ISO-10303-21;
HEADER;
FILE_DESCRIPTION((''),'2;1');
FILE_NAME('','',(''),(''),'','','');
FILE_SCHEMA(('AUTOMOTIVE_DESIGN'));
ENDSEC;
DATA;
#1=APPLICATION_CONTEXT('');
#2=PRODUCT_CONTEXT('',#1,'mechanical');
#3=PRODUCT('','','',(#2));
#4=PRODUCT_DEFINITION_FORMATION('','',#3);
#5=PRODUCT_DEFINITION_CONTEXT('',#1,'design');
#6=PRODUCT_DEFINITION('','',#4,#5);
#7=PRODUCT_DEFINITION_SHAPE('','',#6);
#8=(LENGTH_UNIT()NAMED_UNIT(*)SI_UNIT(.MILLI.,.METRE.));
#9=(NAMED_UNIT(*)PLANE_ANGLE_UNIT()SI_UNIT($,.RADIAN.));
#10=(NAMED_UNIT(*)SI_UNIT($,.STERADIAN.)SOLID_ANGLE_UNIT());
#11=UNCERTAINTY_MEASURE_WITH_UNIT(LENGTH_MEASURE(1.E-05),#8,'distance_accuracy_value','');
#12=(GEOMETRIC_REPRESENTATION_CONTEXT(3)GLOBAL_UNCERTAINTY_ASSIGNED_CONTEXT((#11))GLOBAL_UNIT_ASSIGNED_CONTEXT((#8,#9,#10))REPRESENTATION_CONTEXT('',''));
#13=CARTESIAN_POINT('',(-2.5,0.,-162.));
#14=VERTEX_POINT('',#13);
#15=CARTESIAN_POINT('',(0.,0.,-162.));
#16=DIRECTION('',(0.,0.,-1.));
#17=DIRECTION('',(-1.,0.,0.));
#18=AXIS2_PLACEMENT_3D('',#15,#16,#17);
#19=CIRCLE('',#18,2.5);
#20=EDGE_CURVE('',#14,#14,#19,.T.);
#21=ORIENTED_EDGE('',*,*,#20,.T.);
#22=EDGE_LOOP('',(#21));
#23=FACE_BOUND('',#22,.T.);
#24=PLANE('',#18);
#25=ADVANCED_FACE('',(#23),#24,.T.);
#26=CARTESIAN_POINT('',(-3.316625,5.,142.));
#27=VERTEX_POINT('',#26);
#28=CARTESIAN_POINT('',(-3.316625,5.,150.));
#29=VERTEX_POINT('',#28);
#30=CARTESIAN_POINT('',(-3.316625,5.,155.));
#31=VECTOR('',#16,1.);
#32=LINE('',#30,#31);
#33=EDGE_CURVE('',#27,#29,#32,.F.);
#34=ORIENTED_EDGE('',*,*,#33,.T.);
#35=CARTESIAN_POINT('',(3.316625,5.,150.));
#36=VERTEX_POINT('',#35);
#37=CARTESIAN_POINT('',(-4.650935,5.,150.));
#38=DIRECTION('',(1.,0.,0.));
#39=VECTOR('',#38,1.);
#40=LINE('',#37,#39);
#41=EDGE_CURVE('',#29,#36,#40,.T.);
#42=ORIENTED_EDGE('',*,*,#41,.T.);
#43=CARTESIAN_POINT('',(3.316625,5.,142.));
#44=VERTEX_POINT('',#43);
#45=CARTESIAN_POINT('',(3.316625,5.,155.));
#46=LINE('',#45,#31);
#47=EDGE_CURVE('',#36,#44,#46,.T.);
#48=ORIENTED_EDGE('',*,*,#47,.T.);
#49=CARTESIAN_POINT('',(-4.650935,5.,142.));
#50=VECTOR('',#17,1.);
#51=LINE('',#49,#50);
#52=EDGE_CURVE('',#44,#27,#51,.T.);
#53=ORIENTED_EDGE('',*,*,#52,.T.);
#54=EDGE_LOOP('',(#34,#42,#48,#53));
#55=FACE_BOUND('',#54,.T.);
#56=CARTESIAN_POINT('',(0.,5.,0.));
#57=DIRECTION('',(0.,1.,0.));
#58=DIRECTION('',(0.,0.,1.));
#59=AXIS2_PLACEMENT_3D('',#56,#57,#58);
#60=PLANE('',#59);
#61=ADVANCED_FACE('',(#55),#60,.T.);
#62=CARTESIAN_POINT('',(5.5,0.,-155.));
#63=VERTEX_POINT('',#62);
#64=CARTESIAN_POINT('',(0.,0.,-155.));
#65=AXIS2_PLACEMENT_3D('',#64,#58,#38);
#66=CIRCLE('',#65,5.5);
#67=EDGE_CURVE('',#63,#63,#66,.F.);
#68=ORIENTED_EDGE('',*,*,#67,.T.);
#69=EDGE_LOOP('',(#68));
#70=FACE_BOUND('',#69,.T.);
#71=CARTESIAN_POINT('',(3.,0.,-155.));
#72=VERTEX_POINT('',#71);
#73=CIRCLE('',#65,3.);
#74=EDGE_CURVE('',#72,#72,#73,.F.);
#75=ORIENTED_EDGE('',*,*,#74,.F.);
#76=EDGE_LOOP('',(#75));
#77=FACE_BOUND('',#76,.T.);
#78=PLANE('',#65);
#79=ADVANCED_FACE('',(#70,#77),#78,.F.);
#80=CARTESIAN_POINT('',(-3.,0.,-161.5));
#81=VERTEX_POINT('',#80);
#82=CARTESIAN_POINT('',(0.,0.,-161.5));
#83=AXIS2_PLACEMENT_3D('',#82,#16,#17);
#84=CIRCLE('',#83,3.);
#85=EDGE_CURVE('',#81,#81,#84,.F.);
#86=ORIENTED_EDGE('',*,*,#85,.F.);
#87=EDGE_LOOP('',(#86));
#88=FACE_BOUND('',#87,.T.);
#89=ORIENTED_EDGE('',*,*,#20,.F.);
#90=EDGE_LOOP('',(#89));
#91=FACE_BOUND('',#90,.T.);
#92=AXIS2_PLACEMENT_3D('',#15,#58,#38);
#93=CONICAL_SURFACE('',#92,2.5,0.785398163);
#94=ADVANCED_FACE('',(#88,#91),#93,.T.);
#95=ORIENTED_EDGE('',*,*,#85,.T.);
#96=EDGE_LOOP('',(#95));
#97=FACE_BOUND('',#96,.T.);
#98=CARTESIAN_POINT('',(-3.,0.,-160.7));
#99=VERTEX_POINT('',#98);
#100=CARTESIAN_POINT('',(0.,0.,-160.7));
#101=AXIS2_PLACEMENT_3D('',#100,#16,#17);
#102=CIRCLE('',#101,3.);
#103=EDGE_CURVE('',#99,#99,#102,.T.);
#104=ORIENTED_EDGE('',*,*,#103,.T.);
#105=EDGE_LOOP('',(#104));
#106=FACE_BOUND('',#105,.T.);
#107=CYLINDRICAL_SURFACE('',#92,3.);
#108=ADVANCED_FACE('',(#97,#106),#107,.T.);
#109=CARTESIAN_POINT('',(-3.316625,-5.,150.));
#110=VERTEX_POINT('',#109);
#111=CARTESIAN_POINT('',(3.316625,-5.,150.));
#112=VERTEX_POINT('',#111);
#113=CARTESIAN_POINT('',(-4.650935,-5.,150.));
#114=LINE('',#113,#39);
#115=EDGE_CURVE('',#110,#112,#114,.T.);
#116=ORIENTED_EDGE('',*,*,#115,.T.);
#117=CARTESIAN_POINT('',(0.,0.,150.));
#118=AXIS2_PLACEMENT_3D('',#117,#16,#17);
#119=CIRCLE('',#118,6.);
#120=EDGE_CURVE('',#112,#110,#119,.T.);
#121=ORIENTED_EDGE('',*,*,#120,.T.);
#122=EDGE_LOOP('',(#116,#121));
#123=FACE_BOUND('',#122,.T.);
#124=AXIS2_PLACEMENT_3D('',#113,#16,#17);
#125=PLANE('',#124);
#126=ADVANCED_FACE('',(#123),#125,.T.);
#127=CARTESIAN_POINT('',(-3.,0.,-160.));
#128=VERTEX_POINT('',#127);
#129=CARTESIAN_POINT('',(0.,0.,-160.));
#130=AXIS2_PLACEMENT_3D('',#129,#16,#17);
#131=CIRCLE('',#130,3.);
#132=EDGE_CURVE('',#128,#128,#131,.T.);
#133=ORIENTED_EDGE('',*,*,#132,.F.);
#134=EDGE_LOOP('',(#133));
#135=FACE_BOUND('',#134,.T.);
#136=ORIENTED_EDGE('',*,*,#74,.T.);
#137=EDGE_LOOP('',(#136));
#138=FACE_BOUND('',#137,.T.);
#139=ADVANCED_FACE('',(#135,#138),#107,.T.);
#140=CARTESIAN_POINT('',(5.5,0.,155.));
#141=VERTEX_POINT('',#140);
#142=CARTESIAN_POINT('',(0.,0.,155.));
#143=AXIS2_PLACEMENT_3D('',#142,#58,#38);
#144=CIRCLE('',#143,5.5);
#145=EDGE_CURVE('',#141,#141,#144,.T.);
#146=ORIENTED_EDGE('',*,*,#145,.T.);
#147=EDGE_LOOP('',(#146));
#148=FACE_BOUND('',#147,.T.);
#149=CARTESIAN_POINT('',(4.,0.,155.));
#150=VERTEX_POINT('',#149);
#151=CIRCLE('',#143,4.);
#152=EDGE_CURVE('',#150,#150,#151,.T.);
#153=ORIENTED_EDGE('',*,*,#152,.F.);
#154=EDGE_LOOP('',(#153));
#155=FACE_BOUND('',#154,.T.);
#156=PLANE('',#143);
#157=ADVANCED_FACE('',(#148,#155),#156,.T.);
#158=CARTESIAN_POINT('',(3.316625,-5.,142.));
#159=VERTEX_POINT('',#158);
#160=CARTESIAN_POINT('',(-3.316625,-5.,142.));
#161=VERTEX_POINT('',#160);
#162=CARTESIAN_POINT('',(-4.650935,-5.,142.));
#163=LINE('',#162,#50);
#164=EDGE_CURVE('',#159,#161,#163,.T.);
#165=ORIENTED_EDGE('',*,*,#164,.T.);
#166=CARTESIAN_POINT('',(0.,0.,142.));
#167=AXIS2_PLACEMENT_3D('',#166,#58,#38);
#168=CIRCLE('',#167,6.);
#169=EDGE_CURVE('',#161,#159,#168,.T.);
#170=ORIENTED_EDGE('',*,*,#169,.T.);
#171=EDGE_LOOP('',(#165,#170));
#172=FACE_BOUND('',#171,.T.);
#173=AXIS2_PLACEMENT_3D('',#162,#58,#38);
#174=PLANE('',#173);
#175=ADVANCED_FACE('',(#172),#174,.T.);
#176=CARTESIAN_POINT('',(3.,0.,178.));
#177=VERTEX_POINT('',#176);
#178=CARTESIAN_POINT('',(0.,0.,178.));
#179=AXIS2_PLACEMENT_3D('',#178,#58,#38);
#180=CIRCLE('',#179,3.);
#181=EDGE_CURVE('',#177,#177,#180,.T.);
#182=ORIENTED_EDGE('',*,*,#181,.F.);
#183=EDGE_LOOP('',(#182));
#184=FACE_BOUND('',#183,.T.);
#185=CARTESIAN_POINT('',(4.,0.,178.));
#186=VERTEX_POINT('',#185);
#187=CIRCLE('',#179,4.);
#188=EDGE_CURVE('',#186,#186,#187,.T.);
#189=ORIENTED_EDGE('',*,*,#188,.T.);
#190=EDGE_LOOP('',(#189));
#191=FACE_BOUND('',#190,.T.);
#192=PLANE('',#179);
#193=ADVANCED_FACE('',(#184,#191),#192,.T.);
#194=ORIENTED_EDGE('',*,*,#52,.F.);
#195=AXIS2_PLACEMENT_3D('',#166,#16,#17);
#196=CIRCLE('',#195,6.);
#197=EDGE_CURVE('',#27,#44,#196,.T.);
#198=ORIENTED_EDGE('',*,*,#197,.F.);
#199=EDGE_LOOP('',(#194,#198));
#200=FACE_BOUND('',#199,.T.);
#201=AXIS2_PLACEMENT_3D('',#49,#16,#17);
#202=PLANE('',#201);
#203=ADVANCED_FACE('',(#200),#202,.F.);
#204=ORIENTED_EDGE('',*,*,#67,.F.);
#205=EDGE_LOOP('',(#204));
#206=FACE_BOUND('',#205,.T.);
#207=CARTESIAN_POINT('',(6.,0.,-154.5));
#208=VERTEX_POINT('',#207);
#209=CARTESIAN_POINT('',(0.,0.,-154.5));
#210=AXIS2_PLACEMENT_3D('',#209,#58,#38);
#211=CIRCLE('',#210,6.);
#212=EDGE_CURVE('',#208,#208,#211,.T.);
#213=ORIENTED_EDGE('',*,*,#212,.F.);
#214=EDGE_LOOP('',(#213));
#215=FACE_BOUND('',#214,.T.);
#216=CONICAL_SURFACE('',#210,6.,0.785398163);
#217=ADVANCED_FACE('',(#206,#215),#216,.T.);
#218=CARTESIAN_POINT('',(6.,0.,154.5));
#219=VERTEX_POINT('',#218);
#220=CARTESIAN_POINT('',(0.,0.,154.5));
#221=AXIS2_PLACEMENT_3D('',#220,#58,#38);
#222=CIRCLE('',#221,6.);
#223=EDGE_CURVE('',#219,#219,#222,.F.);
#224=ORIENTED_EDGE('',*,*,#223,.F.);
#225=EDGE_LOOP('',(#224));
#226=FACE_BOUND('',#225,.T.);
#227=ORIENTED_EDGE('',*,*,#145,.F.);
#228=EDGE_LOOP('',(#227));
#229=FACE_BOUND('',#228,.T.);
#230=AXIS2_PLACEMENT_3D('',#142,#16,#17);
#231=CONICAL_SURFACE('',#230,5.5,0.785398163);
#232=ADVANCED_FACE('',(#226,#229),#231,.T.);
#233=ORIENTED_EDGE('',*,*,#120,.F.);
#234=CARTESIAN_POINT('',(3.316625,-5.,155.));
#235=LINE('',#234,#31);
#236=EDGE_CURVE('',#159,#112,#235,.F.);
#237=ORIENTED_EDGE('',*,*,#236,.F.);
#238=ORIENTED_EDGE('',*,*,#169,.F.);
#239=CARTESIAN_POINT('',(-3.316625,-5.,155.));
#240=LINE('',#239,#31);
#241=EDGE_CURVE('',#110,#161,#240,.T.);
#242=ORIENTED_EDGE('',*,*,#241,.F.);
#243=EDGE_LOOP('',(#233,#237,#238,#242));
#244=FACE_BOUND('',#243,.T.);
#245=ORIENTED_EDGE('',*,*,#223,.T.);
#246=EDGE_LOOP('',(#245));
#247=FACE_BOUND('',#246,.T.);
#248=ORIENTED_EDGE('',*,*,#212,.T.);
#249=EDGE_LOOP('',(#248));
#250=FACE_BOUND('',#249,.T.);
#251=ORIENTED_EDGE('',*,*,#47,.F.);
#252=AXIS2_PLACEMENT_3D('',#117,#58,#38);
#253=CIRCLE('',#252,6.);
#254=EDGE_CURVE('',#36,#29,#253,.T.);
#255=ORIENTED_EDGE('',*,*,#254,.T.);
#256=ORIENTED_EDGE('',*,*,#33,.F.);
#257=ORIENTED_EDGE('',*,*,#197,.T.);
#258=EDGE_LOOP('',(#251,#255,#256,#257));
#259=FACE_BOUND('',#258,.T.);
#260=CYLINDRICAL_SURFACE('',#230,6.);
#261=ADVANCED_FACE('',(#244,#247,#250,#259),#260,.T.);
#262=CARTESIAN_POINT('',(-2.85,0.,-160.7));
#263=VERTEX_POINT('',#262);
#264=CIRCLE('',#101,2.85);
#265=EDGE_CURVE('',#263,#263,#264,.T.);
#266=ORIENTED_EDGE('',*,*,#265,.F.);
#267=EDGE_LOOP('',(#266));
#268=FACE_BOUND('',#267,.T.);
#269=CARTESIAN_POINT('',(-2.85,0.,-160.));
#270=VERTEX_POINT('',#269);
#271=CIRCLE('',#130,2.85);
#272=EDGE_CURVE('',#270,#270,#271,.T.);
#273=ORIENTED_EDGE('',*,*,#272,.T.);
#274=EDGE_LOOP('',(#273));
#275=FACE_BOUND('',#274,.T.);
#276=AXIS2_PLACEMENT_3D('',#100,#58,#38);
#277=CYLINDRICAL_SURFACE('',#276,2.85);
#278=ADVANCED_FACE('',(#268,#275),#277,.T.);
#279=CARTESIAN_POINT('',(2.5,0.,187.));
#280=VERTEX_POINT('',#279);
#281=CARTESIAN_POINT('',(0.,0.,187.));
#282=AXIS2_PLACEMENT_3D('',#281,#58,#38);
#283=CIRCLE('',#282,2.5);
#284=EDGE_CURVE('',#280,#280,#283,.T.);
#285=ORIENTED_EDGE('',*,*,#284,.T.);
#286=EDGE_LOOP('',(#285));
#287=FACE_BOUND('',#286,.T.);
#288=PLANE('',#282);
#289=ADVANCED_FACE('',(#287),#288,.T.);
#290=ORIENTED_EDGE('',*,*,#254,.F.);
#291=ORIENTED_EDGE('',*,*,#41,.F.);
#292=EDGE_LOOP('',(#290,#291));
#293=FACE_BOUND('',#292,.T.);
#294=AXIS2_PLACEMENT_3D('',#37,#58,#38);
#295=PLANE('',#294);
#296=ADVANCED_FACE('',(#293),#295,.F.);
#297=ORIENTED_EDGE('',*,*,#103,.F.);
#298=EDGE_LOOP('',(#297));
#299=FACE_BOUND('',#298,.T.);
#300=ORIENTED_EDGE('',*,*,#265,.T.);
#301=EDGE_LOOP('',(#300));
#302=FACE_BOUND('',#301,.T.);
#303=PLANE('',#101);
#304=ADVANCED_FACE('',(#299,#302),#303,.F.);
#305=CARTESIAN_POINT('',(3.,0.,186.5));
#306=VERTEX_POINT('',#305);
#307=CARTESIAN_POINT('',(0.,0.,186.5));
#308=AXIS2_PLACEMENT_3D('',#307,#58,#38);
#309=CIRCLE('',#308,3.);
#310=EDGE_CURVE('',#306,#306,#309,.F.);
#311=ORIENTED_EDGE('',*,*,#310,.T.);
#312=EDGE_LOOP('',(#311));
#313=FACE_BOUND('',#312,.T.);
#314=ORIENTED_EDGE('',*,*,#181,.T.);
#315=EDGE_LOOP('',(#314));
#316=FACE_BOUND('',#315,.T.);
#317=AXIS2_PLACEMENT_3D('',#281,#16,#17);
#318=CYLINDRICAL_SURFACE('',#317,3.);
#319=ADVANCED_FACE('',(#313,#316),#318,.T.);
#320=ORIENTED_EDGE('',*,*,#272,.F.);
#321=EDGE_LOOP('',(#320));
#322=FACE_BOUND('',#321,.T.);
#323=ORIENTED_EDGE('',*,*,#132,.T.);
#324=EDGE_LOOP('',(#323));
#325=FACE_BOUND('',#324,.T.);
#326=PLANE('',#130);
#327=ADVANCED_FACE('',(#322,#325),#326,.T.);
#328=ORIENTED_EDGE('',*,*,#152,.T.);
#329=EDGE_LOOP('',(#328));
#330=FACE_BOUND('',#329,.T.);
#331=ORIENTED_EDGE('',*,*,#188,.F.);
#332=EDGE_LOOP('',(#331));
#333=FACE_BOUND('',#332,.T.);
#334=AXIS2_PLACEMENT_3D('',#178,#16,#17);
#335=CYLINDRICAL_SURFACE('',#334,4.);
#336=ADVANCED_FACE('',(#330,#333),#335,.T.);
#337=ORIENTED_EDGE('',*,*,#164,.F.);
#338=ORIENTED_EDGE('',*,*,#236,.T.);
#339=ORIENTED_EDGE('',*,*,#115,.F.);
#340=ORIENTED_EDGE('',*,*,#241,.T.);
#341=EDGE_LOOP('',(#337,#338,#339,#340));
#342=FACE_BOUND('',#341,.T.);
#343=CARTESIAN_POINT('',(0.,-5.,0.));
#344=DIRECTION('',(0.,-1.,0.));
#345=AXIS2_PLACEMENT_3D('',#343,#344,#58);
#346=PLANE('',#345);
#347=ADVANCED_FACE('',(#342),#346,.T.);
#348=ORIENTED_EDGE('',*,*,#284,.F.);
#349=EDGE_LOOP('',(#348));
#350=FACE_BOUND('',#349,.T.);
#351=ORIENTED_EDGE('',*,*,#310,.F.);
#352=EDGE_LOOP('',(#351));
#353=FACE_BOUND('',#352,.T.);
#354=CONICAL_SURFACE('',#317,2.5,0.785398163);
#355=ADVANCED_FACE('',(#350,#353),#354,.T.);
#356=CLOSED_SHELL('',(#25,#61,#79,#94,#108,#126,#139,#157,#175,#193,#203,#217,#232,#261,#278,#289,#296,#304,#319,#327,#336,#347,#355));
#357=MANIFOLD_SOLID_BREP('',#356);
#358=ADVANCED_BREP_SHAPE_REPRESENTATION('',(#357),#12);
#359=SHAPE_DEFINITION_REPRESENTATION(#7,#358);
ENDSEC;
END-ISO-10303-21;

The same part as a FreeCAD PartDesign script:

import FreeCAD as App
import Part
import Sketcher
Q = App.Units.Quantity


def edges_at(feature, points):
    """Names of the edges that pass closest to the given points."""
    edges = feature.Shape.Edges
    near = lambda p: min(range(len(edges)), key=lambda i: edges[i].distToShape(Part.Vertex(*p))[0])
    return sorted({f"Edge{near(p) + 1}" for p in points})


def add_polygon(sketch, points):
    """Adds a closed chain of lines whose ends are joined by coincident constraints."""
    first, n = sketch.GeometryCount, len(points)
    for a, b in zip(points, points[1:] + points[:1]):
        sketch.addGeometry(Part.LineSegment(App.Vector(*a, 0), App.Vector(*b, 0)), False)
    for i in range(n):
        sketch.addConstraint(Sketcher.Constraint("Coincident", first + i, 2, first + (i + 1) % n, 1))

doc = App.newDocument("Part")
body = doc.addObject("PartDesign::Body", "Body")

sketch1 = doc.addObject("Sketcher::SketchObject", "Sketch")
body.addObject(sketch1)
sketch1.AttachmentSupport = (doc.XY_Plane, [""])
sketch1.MapMode = "FlatFace"
sketch1.addGeometry(Part.Circle(App.Vector(0, 0, 0), App.Vector(0, 0, 1), 6), False)
sketch1.addConstraint([
    Sketcher.Constraint("Coincident", 0, 3, -1, 1),
    Sketcher.Constraint("Diameter", 0, Q("12 mm")),
])
pad1 = doc.addObject("PartDesign::Pad", "Pad")
body.addObject(pad1)
pad1.Profile = sketch1
pad1.Length = 310
pad1.Midplane = True

sketch2 = doc.addObject("Sketcher::SketchObject", "Sketch001")
body.addObject(sketch2)
sketch2.AttachmentSupport = (doc.XY_Plane, [""])
sketch2.MapMode = "FlatFace"
sketch2.AttachmentOffset = App.Placement(App.Vector(0, 0, -155), App.Rotation())
sketch2.addGeometry(Part.Circle(App.Vector(0, 0, 0), App.Vector(0, 0, 1), 3), False)
sketch2.addConstraint([
    Sketcher.Constraint("Coincident", 0, 3, -1, 1),
    Sketcher.Constraint("Diameter", 0, Q("6 mm")),
])
pad2 = doc.addObject("PartDesign::Pad", "Pad001")
body.addObject(pad2)
pad2.Profile = sketch2
pad2.Length = 7
pad2.Reversed = True

sketch3 = doc.addObject("Sketcher::SketchObject", "Sketch002")
body.addObject(sketch3)
sketch3.AttachmentSupport = (doc.XY_Plane, [""])
sketch3.MapMode = "FlatFace"
sketch3.AttachmentOffset = App.Placement(App.Vector(0, 0, -160), App.Rotation())
sketch3.addGeometry([
    Part.Circle(App.Vector(0, 0, 0), App.Vector(0, 0, 1), 3),
    Part.Circle(App.Vector(0, 0, 0), App.Vector(0, 0, 1), 2.9),
], False)
sketch3.addConstraint([
    Sketcher.Constraint("Coincident", 0, 3, -1, 1),
    Sketcher.Constraint("Coincident", 1, 3, -1, 1),
    Sketcher.Constraint("Diameter", 0, Q("6 mm")),
    Sketcher.Constraint("Diameter", 1, Q("5.7 mm")),
])
pocket1 = doc.addObject("PartDesign::Pocket", "Pocket")
body.addObject(pocket1)
pocket1.Profile = sketch3
pocket1.Length = 0.7

sketch4 = doc.addObject("Sketcher::SketchObject", "Sketch003")
body.addObject(sketch4)
sketch4.AttachmentSupport = (doc.XY_Plane, [""])
sketch4.MapMode = "FlatFace"
sketch4.AttachmentOffset = App.Placement(App.Vector(0, 0, 155), App.Rotation())
sketch4.addGeometry(Part.Circle(App.Vector(0, 0, 0), App.Vector(0, 0, 1), 4), False)
sketch4.addConstraint([
    Sketcher.Constraint("Coincident", 0, 3, -1, 1),
    Sketcher.Constraint("Diameter", 0, Q("8 mm")),
])
pad3 = doc.addObject("PartDesign::Pad", "Pad002")
body.addObject(pad3)
pad3.Profile = sketch4
pad3.Length = 23

sketch5 = doc.addObject("Sketcher::SketchObject", "Sketch004")
body.addObject(sketch5)
sketch5.AttachmentSupport = (doc.XY_Plane, [""])
sketch5.MapMode = "FlatFace"
sketch5.AttachmentOffset = App.Placement(App.Vector(0, 0, 187), App.Rotation())
sketch5.addGeometry(Part.Circle(App.Vector(0, 0, 0), App.Vector(0, 0, 1), 3), False)
sketch5.addConstraint([
    Sketcher.Constraint("Coincident", 0, 3, -1, 1),
    Sketcher.Constraint("Diameter", 0, Q("6 mm")),
])
pad4 = doc.addObject("PartDesign::Pad", "Pad003")
body.addObject(pad4)
pad4.Profile = sketch5
pad4.Length = 9
pad4.Reversed = True
doc.recompute()

chamfer = doc.addObject("PartDesign::Chamfer", "Chamfer")
body.addObject(chamfer)
chamfer.Base = (pad4, edges_at(pad4, [
    (-6, 0, -155),
    (-3, 0, 187),
    (-6, 0, 155),
    (-3, 0, -162),
]))
chamfer.Size = 0.5

sketch6 = doc.addObject("Sketcher::SketchObject", "Sketch005")
body.addObject(sketch6)
sketch6.AttachmentSupport = (doc.XZ_Plane, [""])
sketch6.MapMode = "FlatFace"
sketch6.AttachmentOffset = App.Placement(App.Vector(0, 0, -6), App.Rotation())
add_polygon(sketch6, [(-5, 142), (-5, 150), (5, 150), (5, 142)])
sketch6.addConstraint([
    Sketcher.Constraint("Vertical", 0),
    Sketcher.Constraint("Horizontal", 1),
    Sketcher.Constraint("Vertical", 2),
    Sketcher.Constraint("Horizontal", 3),
    Sketcher.Constraint("DistanceY", 0, 1, 0, 2, Q("8 mm")),
    Sketcher.Constraint("DistanceY", -1, 1, 0, 2, Q("150 mm")),
    Sketcher.Constraint("DistanceX", 1, 1, 1, 2, Q("9.30187 mm")),
    Sketcher.Constraint("DistanceX", 0, 2, -1, 1, Q("4.650935 mm")),
])
pocket2 = doc.addObject("PartDesign::Pocket", "Pocket001")
body.addObject(pocket2)
pocket2.Profile = sketch6
pocket2.Length = 1
pocket2.Reversed = True
doc.recompute()

mirrored = doc.addObject("PartDesign::Mirrored", "Mirrored")
body.addObject(mirrored)
mirrored.Originals = [pocket2]
mirrored.MirrorPlane = (doc.XZ_Plane, [""])
body.Tip = mirrored

doc.recompute()
